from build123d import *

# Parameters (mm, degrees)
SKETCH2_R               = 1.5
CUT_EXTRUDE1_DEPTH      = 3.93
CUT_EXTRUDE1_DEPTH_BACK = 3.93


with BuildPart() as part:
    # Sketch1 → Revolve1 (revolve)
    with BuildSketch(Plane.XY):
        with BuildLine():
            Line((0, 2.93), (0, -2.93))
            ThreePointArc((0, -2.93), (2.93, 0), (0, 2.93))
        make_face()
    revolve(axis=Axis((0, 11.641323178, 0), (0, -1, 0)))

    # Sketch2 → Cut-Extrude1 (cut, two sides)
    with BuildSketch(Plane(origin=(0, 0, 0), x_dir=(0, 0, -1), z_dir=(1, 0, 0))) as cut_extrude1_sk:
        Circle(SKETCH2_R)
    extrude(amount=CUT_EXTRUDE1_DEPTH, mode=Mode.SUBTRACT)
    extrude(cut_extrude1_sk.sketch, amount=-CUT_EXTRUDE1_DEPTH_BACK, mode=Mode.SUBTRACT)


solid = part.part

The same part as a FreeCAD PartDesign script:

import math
import FreeCAD as App
import Part
import Sketcher
from FreeCAD import Vector
Q = App.Units.Quantity

doc = App.newDocument("Part")
body = doc.addObject("PartDesign::Body", "Body")

# Sketch on XY plane
sketch1 = body.newObject("Sketcher::SketchObject", "Sketch")
sketch1.AttachmentSupport = (doc.getObject("XY_Plane"), [""])
sketch1.MapMode = "FlatFace"
sketch1.addGeometry([
    Part.LineSegment(Vector(0, 2.9, 0), Vector(0, -2.9, 0)),
    Part.ArcOfCircle(Part.Circle(Vector(0, 0, 0), Vector(0, 0, 1), 2.9), math.radians(-90), math.radians(90)),
], False)
sketch1.addConstraint([
    Sketcher.Constraint("Coincident", 0, 1, 1, 2),
    Sketcher.Constraint("Coincident", 1, 1, 0, 2),
    Sketcher.Constraint("Vertical", 0),
    Sketcher.Constraint("Coincident", 1, 3, -1, 1),
    Sketcher.Constraint("PointOnObject", 0, 1, -2),
    Sketcher.Constraint("Radius", 1, Q("2.93 mm")),
])
revolution = body.newObject("PartDesign::Revolution", "Revolution")
revolution.Profile = sketch1
revolution.ReferenceAxis = (sketch1, ["V_Axis"])
revolution.Angle = 360

# Sketch on YZ plane
sketch2 = body.newObject("Sketcher::SketchObject", "Sketch001")
sketch2.AttachmentSupport = (doc.getObject("YZ_Plane"), [""])
sketch2.MapMode = "FlatFace"
sketch2.addGeometry(Part.Circle(Vector(0, 0, 0), Vector(0, 0, 1), 1.5), False)
sketch2.addConstraint([
    Sketcher.Constraint("Coincident", 0, 3, -1, 1),
    Sketcher.Constraint("Diameter", 0, Q("3 mm")),
])
pocket1 = body.newObject("PartDesign::Pocket", "Pocket")
pocket1.Profile = sketch2
pocket1.Type = "ThroughAll"
pocket1.Midplane = True

doc.recompute()
